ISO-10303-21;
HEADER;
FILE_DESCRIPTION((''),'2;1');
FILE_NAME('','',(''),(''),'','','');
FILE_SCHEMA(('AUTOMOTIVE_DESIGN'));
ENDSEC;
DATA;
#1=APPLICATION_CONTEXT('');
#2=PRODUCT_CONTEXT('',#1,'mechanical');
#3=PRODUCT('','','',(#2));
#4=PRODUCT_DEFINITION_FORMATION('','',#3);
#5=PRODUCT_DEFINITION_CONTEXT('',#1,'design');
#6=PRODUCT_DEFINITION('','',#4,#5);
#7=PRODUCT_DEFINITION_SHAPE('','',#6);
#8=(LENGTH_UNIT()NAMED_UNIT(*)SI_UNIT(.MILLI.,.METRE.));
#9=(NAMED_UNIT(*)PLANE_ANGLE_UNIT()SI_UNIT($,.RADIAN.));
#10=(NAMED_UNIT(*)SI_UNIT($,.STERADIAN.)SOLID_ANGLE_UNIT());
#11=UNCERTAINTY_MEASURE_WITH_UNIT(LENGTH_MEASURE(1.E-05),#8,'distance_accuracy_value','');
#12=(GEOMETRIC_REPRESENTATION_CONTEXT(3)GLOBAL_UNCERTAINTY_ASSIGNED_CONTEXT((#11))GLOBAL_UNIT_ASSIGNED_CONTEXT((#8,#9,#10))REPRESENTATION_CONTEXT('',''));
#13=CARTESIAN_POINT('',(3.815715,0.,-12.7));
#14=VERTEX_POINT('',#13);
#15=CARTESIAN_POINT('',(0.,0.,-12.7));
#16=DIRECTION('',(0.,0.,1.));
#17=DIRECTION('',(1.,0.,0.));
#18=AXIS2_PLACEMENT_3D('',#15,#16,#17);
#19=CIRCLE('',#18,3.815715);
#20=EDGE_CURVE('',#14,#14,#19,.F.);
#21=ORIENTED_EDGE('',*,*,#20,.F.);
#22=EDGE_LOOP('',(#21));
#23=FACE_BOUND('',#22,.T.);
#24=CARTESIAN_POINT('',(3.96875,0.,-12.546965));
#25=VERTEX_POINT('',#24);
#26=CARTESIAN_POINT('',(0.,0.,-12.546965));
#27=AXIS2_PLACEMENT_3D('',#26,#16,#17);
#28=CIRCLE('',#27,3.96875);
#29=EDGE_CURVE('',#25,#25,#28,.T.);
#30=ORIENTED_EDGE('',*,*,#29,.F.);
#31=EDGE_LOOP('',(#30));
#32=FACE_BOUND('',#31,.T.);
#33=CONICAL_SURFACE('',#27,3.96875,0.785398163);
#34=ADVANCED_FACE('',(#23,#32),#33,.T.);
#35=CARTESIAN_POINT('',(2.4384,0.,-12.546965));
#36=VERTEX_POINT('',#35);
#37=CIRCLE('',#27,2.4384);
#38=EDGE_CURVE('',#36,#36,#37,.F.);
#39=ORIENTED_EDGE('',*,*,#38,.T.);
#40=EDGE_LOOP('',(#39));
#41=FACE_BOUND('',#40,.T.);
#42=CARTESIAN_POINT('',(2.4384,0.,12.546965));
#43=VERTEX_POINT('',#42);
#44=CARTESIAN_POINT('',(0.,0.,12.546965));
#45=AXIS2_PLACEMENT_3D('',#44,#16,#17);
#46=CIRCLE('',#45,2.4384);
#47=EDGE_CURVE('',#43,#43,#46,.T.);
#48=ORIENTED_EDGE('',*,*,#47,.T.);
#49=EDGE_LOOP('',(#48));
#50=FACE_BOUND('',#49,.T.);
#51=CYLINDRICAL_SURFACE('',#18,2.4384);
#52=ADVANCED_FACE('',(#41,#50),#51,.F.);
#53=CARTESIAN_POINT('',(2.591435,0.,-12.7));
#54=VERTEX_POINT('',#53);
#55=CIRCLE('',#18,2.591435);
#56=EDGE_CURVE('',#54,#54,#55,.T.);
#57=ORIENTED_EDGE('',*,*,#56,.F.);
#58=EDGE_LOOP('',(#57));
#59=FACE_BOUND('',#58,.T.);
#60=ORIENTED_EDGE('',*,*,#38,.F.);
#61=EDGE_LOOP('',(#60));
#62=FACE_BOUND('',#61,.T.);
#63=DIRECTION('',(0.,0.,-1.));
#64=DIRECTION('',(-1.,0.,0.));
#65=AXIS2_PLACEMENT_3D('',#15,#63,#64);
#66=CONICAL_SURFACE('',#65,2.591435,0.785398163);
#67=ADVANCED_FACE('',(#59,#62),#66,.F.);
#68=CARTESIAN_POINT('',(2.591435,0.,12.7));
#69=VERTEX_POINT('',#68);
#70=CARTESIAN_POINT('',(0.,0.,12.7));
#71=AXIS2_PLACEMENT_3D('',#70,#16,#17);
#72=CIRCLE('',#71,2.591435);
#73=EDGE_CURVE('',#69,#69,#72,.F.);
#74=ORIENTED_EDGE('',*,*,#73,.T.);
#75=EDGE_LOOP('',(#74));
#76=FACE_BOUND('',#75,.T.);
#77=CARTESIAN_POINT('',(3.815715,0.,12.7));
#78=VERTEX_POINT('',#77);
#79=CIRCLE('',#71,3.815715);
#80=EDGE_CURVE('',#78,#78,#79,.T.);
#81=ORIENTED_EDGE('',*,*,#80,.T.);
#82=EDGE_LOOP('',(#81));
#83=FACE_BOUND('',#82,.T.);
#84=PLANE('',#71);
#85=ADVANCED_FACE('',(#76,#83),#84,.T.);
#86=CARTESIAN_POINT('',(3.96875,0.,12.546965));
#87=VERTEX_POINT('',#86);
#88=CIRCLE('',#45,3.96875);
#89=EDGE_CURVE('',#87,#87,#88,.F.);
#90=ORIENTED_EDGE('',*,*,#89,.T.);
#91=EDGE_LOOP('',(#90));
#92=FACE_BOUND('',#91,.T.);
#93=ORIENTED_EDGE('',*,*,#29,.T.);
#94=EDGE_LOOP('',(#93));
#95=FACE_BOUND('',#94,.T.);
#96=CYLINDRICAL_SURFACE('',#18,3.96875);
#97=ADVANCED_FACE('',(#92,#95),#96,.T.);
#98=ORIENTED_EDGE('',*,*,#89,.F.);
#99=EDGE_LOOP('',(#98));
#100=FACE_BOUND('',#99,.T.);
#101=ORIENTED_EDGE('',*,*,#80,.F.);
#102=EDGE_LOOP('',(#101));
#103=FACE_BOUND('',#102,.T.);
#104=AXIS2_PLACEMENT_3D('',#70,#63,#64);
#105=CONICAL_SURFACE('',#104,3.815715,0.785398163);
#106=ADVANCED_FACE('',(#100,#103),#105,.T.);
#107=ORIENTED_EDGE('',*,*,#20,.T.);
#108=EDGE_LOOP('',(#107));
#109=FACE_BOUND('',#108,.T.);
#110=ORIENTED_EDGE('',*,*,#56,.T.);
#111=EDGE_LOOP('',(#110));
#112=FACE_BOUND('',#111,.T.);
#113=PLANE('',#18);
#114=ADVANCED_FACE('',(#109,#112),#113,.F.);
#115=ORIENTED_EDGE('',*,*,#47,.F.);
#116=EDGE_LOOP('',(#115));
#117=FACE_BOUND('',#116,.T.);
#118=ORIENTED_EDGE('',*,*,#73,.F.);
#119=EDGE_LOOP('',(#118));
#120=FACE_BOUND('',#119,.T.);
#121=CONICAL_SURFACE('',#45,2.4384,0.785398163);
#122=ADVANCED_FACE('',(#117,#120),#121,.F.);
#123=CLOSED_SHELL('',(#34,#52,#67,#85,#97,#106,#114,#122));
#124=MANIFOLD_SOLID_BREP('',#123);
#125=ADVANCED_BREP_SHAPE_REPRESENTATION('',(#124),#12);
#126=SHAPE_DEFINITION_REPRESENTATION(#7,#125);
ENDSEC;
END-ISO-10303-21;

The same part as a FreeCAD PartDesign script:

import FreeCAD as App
import Part
import Sketcher

V = App.Vector
Q = App.Units.Quantity


def edges_at(feature, points):
    """Names of the edges that pass closest to the given points."""
    edges = feature.Shape.Edges
    near = lambda p: min(range(len(edges)), key=lambda i: edges[i].distToShape(Part.Vertex(*p))[0])
    return sorted({f"Edge{near(p) + 1}" for p in points})

doc = App.newDocument("Part")
params = doc.addObject("Spreadsheet::Sheet", "Params")
for row, (alias, value) in enumerate([
    ("sketch1_diameter", "0.3125 in"),
    ("sketch1_diameter2", "0.192 in"),
    ("pad1_length", "0.5 in"),
    ("pad1_length2", "0.5 in"),
    ("chamfer_size", "0.153035 mm"),
], start=1):
    params.set(f"A{row}", alias)
    params.set(f"B{row}", "=" + value)
    params.setAlias(f"B{row}", alias)

body = doc.addObject("PartDesign::Body", "Body")

sketch1 = body.newObject("Sketcher::SketchObject", "Sketch")
sketch1.AttachmentSupport = (doc.getObject("XY_Plane"), [""])
sketch1.MapMode = "FlatFace"
sketch1.addGeometry([
    Part.Circle(V(0, 0, 0), V(0, 0, 1), 4),
    Part.Circle(V(0, 0, 0), V(0, 0, 1), 2.4),
], False)
sketch1.addConstraint([
    Sketcher.Constraint("Coincident", 0, 3, -1, 1),
    Sketcher.Constraint("Coincident", 1, 3, -1, 1),
    Sketcher.Constraint("Diameter", 0, Q("0.3125 in")),
    Sketcher.Constraint("Diameter", 1, Q("0.192 in")),
])
sketch1.setExpression("Constraints[2]", "Params.sketch1_diameter")
sketch1.setExpression("Constraints[3]", "Params.sketch1_diameter2")
pad1 = body.newObject("PartDesign::Pad", "Pad")
pad1.Profile = sketch1
pad1.Type = "TwoLengths"
pad1.setExpression("Length", "Params.pad1_length")
pad1.setExpression("Length2", "Params.pad1_length2")
doc.recompute()

chamfer = body.newObject("PartDesign::Chamfer", "Chamfer")
chamfer.Base = (pad1, edges_at(pad1, [
    (-3.969, 0, -12.7),
    (-2.438, 0, -12.7),
    (-3.969, 0, 12.7),
    (-2.438, 0, 12.7),
]))
chamfer.setExpression("Size", "Params.chamfer_size")

doc.recompute()
